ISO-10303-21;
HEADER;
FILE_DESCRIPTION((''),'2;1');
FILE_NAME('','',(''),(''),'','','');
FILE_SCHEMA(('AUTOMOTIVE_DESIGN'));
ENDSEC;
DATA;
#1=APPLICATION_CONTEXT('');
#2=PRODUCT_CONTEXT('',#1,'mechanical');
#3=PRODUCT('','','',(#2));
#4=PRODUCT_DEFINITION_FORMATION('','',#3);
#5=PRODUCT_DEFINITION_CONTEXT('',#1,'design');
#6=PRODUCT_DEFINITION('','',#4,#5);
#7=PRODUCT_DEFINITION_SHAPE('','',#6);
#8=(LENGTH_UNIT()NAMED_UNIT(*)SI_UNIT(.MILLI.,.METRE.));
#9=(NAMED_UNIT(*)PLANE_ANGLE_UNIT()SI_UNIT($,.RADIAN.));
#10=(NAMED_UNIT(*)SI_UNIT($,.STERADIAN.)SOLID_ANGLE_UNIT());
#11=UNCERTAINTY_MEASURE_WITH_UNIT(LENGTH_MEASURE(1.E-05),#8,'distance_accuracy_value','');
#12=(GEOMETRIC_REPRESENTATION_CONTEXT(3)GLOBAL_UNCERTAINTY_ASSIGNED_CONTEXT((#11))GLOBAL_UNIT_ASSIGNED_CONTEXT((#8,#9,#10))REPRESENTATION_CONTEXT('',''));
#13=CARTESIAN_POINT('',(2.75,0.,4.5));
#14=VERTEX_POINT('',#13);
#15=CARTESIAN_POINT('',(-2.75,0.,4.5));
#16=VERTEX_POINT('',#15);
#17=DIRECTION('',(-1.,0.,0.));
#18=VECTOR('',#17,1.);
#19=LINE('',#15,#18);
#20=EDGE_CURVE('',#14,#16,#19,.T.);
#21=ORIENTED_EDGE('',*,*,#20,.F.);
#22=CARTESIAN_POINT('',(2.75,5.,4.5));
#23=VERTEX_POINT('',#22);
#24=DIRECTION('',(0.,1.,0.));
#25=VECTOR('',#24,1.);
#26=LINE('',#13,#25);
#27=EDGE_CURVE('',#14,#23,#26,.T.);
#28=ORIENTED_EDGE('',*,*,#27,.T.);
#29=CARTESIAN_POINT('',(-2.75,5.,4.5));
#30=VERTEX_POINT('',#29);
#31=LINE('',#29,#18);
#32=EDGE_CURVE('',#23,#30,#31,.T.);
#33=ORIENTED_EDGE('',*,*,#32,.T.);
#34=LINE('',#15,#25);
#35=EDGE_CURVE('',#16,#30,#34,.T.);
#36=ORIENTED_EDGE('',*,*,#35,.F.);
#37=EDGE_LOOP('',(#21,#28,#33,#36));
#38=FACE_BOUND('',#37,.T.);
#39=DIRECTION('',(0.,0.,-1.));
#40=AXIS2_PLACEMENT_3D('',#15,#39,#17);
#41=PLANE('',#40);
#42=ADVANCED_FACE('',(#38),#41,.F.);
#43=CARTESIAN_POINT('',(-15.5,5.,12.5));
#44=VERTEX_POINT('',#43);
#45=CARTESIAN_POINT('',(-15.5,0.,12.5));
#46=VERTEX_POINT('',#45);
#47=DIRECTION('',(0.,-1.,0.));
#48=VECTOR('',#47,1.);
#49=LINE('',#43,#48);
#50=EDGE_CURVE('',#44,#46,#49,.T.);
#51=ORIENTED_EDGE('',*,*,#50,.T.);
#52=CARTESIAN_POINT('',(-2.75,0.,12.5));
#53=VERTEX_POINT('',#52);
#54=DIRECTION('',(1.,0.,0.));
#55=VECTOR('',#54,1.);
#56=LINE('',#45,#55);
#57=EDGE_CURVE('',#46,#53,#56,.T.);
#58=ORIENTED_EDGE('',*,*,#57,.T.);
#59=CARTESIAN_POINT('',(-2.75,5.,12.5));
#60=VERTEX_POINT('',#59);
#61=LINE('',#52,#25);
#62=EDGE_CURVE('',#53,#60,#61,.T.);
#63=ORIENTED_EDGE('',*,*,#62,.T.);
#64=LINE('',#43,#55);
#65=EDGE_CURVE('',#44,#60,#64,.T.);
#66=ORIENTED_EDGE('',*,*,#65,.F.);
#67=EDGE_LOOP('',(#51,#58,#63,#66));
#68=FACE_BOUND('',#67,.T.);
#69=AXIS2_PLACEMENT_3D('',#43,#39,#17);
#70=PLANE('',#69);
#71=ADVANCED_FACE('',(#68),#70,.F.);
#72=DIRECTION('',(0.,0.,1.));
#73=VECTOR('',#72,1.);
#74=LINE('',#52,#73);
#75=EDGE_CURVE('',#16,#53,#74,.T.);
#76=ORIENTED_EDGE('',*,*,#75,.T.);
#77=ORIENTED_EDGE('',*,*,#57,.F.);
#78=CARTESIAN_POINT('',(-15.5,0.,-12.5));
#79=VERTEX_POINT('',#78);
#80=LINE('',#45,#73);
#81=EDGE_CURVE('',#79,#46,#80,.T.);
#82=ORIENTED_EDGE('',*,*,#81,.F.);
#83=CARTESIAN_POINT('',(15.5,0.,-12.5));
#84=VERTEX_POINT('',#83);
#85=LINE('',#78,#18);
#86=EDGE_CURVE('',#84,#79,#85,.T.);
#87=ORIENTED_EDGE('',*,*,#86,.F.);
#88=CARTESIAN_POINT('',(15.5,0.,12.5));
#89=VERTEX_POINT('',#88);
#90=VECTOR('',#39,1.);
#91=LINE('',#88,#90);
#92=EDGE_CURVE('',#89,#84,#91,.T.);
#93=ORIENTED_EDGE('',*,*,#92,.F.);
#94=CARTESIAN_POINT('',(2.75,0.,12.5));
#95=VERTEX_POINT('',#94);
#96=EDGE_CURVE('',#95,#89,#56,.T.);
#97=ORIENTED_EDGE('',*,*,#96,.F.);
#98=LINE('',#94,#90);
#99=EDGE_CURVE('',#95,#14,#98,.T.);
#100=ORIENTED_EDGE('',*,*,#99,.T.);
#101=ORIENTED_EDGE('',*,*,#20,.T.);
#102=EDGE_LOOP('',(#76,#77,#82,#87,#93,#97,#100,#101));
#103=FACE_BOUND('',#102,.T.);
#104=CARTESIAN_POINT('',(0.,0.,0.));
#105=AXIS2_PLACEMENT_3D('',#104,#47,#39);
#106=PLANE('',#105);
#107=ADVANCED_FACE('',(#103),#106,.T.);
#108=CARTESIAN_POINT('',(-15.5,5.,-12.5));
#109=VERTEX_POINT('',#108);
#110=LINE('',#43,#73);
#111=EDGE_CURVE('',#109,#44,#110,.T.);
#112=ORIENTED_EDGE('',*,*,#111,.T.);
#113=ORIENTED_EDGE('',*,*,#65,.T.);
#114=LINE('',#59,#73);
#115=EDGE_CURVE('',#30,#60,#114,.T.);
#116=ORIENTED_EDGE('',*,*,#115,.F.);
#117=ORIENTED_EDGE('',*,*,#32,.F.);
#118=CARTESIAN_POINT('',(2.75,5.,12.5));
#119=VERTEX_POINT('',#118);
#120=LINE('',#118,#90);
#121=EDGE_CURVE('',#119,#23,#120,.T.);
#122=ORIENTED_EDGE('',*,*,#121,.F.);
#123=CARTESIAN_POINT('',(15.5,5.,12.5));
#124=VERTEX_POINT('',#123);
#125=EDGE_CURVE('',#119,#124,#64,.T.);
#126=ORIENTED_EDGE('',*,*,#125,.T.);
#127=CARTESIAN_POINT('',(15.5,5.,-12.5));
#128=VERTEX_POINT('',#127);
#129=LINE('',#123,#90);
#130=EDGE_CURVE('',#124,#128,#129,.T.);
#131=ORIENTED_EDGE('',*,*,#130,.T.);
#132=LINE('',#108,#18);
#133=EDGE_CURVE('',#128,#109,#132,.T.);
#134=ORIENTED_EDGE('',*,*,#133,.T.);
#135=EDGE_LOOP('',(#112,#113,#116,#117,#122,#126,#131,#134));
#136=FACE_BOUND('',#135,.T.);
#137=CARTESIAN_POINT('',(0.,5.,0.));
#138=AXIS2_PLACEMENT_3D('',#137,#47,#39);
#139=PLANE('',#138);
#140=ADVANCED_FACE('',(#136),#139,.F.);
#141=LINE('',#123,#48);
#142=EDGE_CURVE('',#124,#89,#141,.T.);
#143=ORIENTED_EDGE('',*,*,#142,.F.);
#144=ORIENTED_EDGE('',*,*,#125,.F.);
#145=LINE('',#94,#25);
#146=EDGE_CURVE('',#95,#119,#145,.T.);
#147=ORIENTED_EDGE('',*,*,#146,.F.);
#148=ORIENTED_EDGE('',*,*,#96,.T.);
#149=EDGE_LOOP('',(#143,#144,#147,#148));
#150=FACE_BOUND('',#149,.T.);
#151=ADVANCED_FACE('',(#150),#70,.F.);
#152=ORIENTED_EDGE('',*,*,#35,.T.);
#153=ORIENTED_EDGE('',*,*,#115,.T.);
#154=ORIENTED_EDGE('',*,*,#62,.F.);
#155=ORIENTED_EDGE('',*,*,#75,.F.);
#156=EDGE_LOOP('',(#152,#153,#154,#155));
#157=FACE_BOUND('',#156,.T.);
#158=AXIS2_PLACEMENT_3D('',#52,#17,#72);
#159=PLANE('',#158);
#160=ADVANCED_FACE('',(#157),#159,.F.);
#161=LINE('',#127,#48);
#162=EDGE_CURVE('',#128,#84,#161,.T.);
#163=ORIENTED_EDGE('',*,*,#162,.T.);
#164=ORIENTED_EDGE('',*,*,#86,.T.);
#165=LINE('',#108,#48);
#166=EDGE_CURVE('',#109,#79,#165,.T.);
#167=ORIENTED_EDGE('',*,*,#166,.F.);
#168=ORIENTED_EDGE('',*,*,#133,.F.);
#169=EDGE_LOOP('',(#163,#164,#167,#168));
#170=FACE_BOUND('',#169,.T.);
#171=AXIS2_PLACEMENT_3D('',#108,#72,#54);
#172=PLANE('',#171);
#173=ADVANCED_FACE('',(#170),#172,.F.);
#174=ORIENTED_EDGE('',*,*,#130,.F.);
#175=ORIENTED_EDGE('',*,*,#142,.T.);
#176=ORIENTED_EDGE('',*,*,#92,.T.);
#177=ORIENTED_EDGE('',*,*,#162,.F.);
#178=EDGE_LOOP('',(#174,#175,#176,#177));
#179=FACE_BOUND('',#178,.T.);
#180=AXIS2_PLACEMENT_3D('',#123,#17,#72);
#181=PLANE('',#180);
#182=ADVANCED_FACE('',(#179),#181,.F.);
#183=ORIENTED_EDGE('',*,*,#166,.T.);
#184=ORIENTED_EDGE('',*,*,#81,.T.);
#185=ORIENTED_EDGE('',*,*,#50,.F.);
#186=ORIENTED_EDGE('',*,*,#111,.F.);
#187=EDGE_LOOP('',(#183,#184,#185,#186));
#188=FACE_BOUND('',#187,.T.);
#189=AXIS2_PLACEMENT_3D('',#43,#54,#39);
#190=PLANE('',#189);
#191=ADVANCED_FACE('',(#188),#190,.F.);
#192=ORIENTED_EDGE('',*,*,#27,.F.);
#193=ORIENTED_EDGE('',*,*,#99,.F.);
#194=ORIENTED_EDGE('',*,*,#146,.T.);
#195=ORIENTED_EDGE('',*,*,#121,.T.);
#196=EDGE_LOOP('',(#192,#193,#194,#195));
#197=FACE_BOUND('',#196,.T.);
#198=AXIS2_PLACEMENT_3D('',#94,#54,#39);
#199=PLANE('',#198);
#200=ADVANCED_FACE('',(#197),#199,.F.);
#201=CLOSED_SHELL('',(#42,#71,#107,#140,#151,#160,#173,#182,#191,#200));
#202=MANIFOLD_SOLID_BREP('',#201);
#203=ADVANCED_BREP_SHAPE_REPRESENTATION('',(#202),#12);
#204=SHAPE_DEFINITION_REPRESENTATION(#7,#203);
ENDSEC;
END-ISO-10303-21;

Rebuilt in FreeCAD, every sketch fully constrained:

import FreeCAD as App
import Part
import Sketcher

V = App.Vector
Q = App.Units.Quantity


def add_polygon(sketch, points):
    """Adds a closed chain of lines whose ends are joined by coincident constraints."""
    first, n = sketch.GeometryCount, len(points)
    for a, b in zip(points, points[1:] + points[:1]):
        sketch.addGeometry(Part.LineSegment(App.Vector(*a, 0), App.Vector(*b, 0)), False)
    for i in range(n):
        sketch.addConstraint(Sketcher.Constraint("Coincident", first + i, 2, first + (i + 1) % n, 1))

doc = App.newDocument("Part")
params = doc.addObject("Spreadsheet::Sheet", "Params")
for row, (alias, value) in enumerate([
    ("sketch1_width", "31 mm"),
    ("sketch1_height", "25 mm"),
    ("pad1_length", "5 mm"),
    ("sketch2_height", "8 mm"),
    ("sketch2_width", "5.5 mm"),
    ("pocket1_length", "5 mm"),
], start=1):
    params.set(f"A{row}", alias)
    params.set(f"B{row}", "=" + value)
    params.setAlias(f"B{row}", alias)

body = doc.addObject("PartDesign::Body", "Body")

sketch1 = body.newObject("Sketcher::SketchObject", "Sketch")
sketch1.AttachmentSupport = (doc.getObject("XZ_Plane"), [""])
sketch1.MapMode = "FlatFace"
add_polygon(sketch1, [(-15.5, -12.5), (-15.5, 12.5), (15.5, 12.5), (15.5, -12.5)])
sketch1.addConstraint([
    Sketcher.Constraint("Vertical", 0),
    Sketcher.Constraint("Horizontal", 1),
    Sketcher.Constraint("Vertical", 2),
    Sketcher.Constraint("Horizontal", 3),
    Sketcher.Constraint("Symmetric", 0, 2, 2, 2, -1, 1),
    Sketcher.Constraint("DistanceX", 1, 1, 1, 2, Q("31 mm")),
    Sketcher.Constraint("DistanceY", 0, 1, 0, 2, Q("25 mm")),
])
sketch1.setExpression("Constraints[9]", "Params.sketch1_width")
sketch1.setExpression("Constraints[10]", "Params.sketch1_height")
pad1 = body.newObject("PartDesign::Pad", "Pad")
pad1.Profile = sketch1
pad1.setExpression("Length", "Params.pad1_length")
pad1.Reversed = True

sketch2 = body.newObject("Sketcher::SketchObject", "Sketch001")
sketch2.AttachmentSupport = (doc.getObject("XZ_Plane"), [""])
sketch2.MapMode = "FlatFace"
sketch2.AttachmentOffset = App.Placement(V(0, 0, -5), App.Rotation())
add_polygon(sketch2, [(-2.75, 4.5), (-2.75, 12.5), (2.75, 12.5), (2.75, 4.5)])
sketch2.addConstraint([
    Sketcher.Constraint("Vertical", 0),
    Sketcher.Constraint("Horizontal", 1),
    Sketcher.Constraint("Vertical", 2),
    Sketcher.Constraint("Horizontal", 3),
    Sketcher.Constraint("DistanceY", 0, 1, 0, 2, Q("8 mm")),
    Sketcher.Constraint("DistanceX", 1, 1, 1, 2, Q("5.5 mm")),
    Sketcher.Constraint("DistanceY", -1, 1, 0, 2, Q("12.5 mm")),
    Sketcher.Constraint("DistanceX", 0, 2, -1, 1, Q("2.75 mm")),
])
sketch2.setExpression("Constraints[8]", "Params.sketch2_height")
sketch2.setExpression("Constraints[9]", "Params.sketch2_width")
pocket1 = body.newObject("PartDesign::Pocket", "Pocket")
pocket1.Profile = sketch2
pocket1.setExpression("Length", "Params.pocket1_length")
pocket1.Reversed = True

doc.recompute()
